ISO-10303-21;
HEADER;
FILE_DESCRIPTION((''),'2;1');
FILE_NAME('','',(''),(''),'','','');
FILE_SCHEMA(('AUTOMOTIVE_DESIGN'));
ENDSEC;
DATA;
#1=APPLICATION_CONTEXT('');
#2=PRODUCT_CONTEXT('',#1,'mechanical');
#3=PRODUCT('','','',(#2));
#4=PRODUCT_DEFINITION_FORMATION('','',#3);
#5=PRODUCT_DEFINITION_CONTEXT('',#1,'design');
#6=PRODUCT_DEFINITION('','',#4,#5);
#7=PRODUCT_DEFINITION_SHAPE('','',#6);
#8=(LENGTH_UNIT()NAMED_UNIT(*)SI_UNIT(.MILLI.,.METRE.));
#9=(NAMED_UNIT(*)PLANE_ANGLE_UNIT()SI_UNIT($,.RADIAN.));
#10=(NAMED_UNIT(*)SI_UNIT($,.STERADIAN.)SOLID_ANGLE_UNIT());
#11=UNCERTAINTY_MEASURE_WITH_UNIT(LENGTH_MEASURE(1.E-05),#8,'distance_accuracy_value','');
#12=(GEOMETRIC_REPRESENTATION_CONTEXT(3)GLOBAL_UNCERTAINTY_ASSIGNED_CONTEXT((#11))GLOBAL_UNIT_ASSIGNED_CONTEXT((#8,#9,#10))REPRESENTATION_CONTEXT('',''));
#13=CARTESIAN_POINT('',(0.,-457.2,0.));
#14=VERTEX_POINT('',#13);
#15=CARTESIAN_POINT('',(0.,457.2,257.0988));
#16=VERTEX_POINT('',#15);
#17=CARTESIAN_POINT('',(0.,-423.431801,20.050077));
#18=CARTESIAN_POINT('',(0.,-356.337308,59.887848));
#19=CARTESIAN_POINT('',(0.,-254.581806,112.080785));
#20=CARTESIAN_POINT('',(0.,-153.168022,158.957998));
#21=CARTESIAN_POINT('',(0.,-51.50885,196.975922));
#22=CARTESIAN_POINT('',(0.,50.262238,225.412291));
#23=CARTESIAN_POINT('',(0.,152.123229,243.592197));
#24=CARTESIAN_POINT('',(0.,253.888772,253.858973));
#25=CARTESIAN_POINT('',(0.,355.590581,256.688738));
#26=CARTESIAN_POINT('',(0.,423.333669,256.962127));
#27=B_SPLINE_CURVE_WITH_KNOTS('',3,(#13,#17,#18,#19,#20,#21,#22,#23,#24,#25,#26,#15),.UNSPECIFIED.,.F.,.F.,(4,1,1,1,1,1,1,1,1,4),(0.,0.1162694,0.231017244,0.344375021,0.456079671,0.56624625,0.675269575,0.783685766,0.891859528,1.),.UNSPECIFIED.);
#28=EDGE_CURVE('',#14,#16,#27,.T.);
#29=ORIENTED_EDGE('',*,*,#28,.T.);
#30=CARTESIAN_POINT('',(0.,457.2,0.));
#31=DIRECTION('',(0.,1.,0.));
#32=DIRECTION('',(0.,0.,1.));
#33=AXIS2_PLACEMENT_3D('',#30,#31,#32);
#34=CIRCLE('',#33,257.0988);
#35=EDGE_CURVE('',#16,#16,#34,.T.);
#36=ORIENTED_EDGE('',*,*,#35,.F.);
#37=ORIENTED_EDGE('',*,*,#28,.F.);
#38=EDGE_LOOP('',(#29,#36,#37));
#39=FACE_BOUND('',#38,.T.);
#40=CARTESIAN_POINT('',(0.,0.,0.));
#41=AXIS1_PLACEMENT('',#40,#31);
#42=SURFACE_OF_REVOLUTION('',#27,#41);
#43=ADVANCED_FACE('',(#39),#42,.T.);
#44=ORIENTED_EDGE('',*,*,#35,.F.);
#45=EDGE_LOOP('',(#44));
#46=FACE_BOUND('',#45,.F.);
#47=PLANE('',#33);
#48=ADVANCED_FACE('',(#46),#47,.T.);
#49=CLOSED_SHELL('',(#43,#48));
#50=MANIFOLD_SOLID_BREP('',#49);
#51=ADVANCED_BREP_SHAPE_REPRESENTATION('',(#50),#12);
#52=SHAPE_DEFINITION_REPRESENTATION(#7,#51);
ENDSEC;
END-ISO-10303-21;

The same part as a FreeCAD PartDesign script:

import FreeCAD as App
import Part
import Sketcher
from FreeCAD import Vector

doc = App.newDocument("Part")
body = doc.addObject("PartDesign::Body", "Body")

# Sketch on YZ plane
sketch1 = body.newObject("Sketcher::SketchObject", "Sketch")
sketch1.AttachmentSupport = (doc.getObject("YZ_Plane"), [""])
sketch1.MapMode = "FlatFace"
sketch1.addGeometry([
    Part.BSplineCurve([Vector(-457.2, 0, 0), Vector(-423.431801, 20.050077, 0), Vector(-356.337308, 59.887848, 0), Vector(-254.581806, 112.080785, 0), Vector(-153.168022, 158.957998, 0), Vector(-51.50885, 196.975922, 0), Vector(50.262238, 225.412291, 0), Vector(152.123229, 243.592197, 0), Vector(253.888772, 253.858973, 0), Vector(355.590581, 256.688738, 0), Vector(423.333669, 256.962127, 0), Vector(457.2, 257.0988, 0)], [4, 1, 1, 1, 1, 1, 1, 1, 1, 4], [0, 0.1162694, 0.231017244, 0.344375021, 0.456079671, 0.56624625, 0.675269575, 0.783685766, 0.891859528, 1], False, 3, [1, 1, 1, 1, 1, 1, 1, 1, 1, 1, 1, 1], False),
    Part.LineSegment(Vector(-457.2, 0, 0), Vector(457.2, 0, 0)),
    Part.LineSegment(Vector(457.2, 0, 0), Vector(457.2, 257.0988, 0)),
], False)
sketch1.addConstraint([
    Sketcher.Constraint("Block", 0),
    Sketcher.Constraint("Coincident", 0, 1, 1, 1),
    Sketcher.Constraint("Coincident", 1, 2, 2, 1),
    Sketcher.Constraint("Coincident", 2, 2, 0, 2),
    Sketcher.Constraint("Horizontal", 1),
    Sketcher.Constraint("Vertical", 2),
])
revolution = body.newObject("PartDesign::Revolution", "Revolution")
revolution.Profile = sketch1
revolution.ReferenceAxis = (sketch1, ["H_Axis"])
revolution.Angle = 360

doc.recompute()
